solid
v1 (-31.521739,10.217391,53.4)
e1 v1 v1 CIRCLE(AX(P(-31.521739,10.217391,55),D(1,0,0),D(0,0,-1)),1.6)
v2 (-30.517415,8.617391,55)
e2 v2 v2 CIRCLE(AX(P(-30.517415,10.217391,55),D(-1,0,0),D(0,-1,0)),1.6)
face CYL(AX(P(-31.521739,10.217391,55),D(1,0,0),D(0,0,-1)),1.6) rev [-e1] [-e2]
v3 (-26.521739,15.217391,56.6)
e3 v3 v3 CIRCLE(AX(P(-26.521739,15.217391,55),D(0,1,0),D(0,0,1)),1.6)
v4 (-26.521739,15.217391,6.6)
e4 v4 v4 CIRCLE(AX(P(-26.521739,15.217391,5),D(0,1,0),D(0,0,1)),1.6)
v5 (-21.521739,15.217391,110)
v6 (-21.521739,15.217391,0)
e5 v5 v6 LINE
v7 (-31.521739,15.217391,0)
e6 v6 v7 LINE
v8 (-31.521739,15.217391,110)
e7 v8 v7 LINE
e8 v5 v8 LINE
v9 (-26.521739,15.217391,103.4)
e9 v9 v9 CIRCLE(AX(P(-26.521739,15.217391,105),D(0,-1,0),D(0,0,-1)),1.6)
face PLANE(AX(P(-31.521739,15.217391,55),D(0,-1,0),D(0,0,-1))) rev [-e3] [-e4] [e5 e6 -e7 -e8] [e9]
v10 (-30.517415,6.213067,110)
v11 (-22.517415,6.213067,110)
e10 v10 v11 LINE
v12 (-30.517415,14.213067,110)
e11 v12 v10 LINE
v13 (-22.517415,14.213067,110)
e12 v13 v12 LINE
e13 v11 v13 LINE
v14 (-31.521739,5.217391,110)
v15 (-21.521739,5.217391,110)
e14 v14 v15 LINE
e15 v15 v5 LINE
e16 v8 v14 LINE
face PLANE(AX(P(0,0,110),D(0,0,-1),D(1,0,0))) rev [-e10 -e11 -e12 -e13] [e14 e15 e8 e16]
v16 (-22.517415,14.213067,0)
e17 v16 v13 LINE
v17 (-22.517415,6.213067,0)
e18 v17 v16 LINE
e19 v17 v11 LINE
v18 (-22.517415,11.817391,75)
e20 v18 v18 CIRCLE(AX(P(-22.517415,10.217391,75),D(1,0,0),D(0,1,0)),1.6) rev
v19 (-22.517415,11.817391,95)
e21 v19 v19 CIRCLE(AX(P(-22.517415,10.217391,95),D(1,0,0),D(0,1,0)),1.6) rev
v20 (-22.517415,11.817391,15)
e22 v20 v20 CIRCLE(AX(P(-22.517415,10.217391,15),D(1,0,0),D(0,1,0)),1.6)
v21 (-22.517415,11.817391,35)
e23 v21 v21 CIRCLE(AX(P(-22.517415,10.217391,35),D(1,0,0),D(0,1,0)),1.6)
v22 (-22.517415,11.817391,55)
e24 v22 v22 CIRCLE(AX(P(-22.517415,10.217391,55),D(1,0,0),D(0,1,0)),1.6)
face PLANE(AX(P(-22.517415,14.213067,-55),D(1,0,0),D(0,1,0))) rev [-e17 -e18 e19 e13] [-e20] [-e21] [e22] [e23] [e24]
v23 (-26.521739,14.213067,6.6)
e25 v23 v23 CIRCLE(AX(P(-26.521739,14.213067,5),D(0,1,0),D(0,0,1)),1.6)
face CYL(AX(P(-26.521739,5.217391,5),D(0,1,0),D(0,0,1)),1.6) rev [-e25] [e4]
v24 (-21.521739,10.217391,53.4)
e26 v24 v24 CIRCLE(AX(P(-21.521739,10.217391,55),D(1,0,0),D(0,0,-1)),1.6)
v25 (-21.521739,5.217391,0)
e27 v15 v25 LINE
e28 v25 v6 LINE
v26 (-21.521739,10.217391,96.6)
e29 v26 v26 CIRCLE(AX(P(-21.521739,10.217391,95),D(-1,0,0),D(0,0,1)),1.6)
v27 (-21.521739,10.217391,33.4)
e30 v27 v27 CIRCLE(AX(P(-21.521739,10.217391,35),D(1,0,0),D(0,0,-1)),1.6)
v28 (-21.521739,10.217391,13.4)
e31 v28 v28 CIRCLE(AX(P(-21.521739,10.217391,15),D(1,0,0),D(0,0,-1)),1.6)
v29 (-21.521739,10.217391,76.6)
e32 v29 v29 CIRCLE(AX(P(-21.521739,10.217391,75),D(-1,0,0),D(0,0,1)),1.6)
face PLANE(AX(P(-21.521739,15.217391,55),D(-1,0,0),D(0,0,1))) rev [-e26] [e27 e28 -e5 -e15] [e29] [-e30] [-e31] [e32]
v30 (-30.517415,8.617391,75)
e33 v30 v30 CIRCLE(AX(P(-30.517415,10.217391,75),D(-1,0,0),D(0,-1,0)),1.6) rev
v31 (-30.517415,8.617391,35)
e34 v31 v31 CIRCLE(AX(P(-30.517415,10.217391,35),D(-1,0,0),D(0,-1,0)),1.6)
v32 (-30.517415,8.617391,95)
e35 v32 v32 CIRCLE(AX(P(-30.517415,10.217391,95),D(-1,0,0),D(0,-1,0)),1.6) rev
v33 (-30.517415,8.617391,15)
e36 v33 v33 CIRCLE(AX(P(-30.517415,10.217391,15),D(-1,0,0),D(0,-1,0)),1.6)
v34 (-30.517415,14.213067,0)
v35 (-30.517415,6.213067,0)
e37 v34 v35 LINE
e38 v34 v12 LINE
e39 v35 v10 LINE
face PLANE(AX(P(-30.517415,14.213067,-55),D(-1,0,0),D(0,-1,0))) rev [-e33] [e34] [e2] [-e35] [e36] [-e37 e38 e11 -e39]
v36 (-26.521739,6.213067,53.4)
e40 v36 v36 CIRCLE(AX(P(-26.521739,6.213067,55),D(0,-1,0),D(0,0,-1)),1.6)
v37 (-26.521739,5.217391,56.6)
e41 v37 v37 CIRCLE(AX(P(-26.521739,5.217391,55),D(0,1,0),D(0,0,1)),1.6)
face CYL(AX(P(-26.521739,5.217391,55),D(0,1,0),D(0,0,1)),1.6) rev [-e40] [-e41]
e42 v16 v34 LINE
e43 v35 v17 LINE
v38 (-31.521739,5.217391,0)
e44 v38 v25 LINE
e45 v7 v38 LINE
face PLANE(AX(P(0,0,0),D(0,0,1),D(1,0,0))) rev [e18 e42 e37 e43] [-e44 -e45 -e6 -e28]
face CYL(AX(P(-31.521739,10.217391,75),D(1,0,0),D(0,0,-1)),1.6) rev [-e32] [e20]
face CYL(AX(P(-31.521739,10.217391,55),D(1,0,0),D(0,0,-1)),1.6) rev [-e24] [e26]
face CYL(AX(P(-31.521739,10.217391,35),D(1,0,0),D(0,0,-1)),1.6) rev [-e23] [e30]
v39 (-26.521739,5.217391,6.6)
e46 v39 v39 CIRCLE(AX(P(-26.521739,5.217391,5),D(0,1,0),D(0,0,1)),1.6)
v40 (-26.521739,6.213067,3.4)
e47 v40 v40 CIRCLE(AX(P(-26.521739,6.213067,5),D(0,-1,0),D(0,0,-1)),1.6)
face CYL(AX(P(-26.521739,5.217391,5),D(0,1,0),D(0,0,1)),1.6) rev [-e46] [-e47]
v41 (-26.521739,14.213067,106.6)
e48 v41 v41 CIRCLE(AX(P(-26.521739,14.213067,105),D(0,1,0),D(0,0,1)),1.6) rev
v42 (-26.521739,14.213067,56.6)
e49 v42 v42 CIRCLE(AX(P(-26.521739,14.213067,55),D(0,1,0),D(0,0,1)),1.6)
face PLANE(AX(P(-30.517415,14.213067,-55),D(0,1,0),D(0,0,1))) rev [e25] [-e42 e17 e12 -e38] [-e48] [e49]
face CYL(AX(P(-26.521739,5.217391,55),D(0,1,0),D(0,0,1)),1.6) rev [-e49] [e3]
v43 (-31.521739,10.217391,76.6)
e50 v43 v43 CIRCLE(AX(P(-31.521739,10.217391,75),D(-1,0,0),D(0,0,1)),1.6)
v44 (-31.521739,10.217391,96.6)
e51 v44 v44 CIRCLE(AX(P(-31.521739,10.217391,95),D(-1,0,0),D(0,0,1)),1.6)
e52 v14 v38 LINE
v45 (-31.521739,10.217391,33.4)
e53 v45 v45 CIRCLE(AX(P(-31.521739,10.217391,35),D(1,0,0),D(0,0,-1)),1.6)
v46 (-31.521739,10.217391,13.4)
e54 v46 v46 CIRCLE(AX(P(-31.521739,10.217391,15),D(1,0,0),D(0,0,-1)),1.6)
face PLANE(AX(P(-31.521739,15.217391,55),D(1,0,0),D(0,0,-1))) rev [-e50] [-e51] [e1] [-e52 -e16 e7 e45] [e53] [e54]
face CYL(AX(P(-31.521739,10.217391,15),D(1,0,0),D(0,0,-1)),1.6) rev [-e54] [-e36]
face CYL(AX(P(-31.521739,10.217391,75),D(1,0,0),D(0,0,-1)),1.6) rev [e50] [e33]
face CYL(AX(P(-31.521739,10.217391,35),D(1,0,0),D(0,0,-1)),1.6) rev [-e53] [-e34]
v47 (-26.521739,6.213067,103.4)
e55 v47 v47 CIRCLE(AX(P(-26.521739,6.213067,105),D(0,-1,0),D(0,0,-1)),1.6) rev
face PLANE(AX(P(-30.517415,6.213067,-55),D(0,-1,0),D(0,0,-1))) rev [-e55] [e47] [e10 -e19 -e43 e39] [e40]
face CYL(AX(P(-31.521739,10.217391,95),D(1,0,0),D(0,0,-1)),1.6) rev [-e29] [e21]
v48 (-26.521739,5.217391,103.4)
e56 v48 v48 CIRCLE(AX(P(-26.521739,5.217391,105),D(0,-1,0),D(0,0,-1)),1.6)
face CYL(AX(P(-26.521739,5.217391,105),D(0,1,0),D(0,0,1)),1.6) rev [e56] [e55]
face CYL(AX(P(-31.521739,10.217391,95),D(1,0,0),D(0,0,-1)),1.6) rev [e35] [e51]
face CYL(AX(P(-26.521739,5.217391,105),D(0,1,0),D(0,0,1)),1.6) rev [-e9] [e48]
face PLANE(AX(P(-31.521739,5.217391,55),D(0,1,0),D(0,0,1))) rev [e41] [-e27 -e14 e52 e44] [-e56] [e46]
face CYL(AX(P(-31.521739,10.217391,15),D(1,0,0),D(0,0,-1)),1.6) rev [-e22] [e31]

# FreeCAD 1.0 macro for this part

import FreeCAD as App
import Part
import Sketcher

V = App.Vector

doc = App.newDocument("Part")
body = doc.addObject("PartDesign::Body", "Body")

sketch1 = body.newObject("Sketcher::SketchObject", "Sketch")
sketch1.AttachmentSupport = (doc.getObject("XY_Plane"), [""])
sketch1.MapMode = "FlatFace"
sketch1.addGeometry([
    Part.LineSegment(V(-31.521739, 15.217391, 0), V(-31.521739, 5.217391, 0)),
    Part.LineSegment(V(-31.521739, 5.217391, 0), V(-21.521739, 5.217391, 0)),
    Part.LineSegment(V(-21.521739, 5.217391, 0), V(-21.521739, 15.217391, 0)),
    Part.LineSegment(V(-21.521739, 15.217391, 0), V(-31.521739, 15.217391, 0)),
], False)
sketch1.addConstraint([
    Sketcher.Constraint("Coincident", 0, 2, 1, 1),
    Sketcher.Constraint("Coincident", 1, 2, 2, 1),
    Sketcher.Constraint("Coincident", 2, 2, 3, 1),
    Sketcher.Constraint("Coincident", 3, 2, 0, 1),
    Sketcher.Constraint("Vertical", 0),
    Sketcher.Constraint("Horizontal", 1),
    Sketcher.Constraint("Vertical", 2),
    Sketcher.Constraint("Horizontal", 3),
    Sketcher.Constraint("Equal", 3, 0),
    Sketcher.Constraint("DistanceX", 1, 1, 1, 2, 10.0),
    Sketcher.Constraint("DistanceX", 0, 2, -1, 1, 31.521739),
    Sketcher.Constraint("DistanceY", -1, 1, 0, 2, 5.217391),
])
pad1 = body.newObject("PartDesign::Pad", "Pad")
pad1.Profile = sketch1
pad1.Length = 55

sketch2 = body.newObject("Sketcher::SketchObject", "Sketch001")
sketch2.AttachmentSupport = (doc.getObject("XY_Plane"), [""])
sketch2.MapMode = "FlatFace"
sketch2.AttachmentOffset = App.Placement(V(0, 0, 55), App.Rotation())
sketch2.addGeometry([
    Part.LineSegment(V(-30.517415, 14.213067, 0), V(-30.517415, 6.213067, 0)),
    Part.LineSegment(V(-30.517415, 6.213067, 0), V(-22.517415, 6.213067, 0)),
    Part.LineSegment(V(-22.517415, 6.213067, 0), V(-22.517415, 14.213067, 0)),
    Part.LineSegment(V(-22.517415, 14.213067, 0), V(-30.517415, 14.213067, 0)),
], False)
sketch2.addConstraint([
    Sketcher.Constraint("Coincident", 0, 2, 1, 1),
    Sketcher.Constraint("Coincident", 1, 2, 2, 1),
    Sketcher.Constraint("Coincident", 2, 2, 3, 1),
    Sketcher.Constraint("Coincident", 3, 2, 0, 1),
    Sketcher.Constraint("Vertical", 0),
    Sketcher.Constraint("Horizontal", 1),
    Sketcher.Constraint("Vertical", 2),
    Sketcher.Constraint("Horizontal", 3),
    Sketcher.Constraint("Equal", 3, 0),
    Sketcher.Constraint("DistanceX", 1, 1, 1, 2, 8.0),
    Sketcher.Constraint("DistanceX", 0, 2, -1, 1, 30.517415),
    Sketcher.Constraint("DistanceY", -1, 1, 0, 2, 6.213067),
])
pocket1 = body.newObject("PartDesign::Pocket", "Pocket")
pocket1.Profile = sketch2
pocket1.Length = 110

sketch3 = body.newObject("Sketcher::SketchObject", "Sketch002")
sketch3.AttachmentSupport = (doc.getObject("YZ_Plane"), [""])
sketch3.MapMode = "FlatFace"
sketch3.AttachmentOffset = App.Placement(V(0, 0, -21.521739), App.Rotation())
sketch3.addGeometry([
    Part.Circle(V(10.217391, 15, 0), V(0, 0, 1), 1.6),
    Part.Circle(V(10.217391, 35, 0), V(0, 0, 1), 1.6),
    Part.Circle(V(10.217391, 55, 0), V(0, 0, 1), 1.6),
], False)
sketch3.addConstraint([
    Sketcher.Constraint("Equal", 0, 1),
    Sketcher.Constraint("Equal", 1, 2),
    Sketcher.Constraint("Vertical", 0, 3, 1, 3),
    Sketcher.Constraint("Vertical", 1, 3, 2, 3),
    Sketcher.Constraint("Diameter", 0, 3.2),
    Sketcher.Constraint("DistanceY", -1, 1, 0, 3, 15.0),
    Sketcher.Constraint("DistanceY", -1, 1, 1, 3, 35.0),
    Sketcher.Constraint("DistanceY", -1, 1, 2, 3, 55.0),
    Sketcher.Constraint("DistanceX", -1, 1, 0, 3, 10.217391),
])
pocket2 = body.newObject("PartDesign::Pocket", "Pocket001")
pocket2.Profile = sketch3
pocket2.Length = 10

sketch4 = body.newObject("Sketcher::SketchObject", "Sketch003")
sketch4.AttachmentSupport = (doc.getObject("XZ_Plane"), [""])
sketch4.MapMode = "FlatFace"
sketch4.AttachmentOffset = App.Placement(V(0, 0, -15.217391), App.Rotation())
sketch4.addGeometry([
    Part.Circle(V(-26.521739, 55, 0), V(0, 0, 1), 1.6),
    Part.Circle(V(-26.521739, 5, 0), V(0, 0, 1), 1.6),
], False)
sketch4.addConstraint([
    Sketcher.Constraint("Equal", 0, 1),
    Sketcher.Constraint("Vertical", 0, 3, 1, 3),
    Sketcher.Constraint("Diameter", 0, 3.2),
    Sketcher.Constraint("DistanceY", -1, 1, 0, 3, 55.0),
    Sketcher.Constraint("DistanceY", -1, 1, 1, 3, 5.0),
    Sketcher.Constraint("DistanceX", 0, 3, -1, 1, 26.521739),
])
pocket3 = body.newObject("PartDesign::Pocket", "Pocket002")
pocket3.Profile = sketch4
pocket3.Length = 10
pocket3.Reversed = True
doc.recompute()

datumplane = body.newObject("PartDesign::Plane", "DatumPlane")
datumplane.AttachmentSupport = (doc.getObject("XY_Plane"), [""])
datumplane.MapMode = "FlatFace"
datumplane.AttachmentOffset = App.Placement(V(0, 0, 55), App.Rotation())
mirrored = body.newObject("PartDesign::Mirrored", "Mirrored")
mirrored.Originals = [pad1, pocket1, pocket2, pocket3]
mirrored.MirrorPlane = (datumplane, [""])
body.Tip = mirrored

doc.recompute()
